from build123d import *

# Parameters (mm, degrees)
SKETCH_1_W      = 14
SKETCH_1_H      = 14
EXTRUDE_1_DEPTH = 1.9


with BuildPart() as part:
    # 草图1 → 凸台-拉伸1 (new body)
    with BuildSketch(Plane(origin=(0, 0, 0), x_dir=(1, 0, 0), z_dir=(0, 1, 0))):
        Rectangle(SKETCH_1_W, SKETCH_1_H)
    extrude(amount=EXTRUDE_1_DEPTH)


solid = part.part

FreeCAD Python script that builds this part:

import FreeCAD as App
import Part
import Sketcher
Q = App.Units.Quantity


def add_polygon(sketch, points):
    """Adds a closed chain of lines whose ends are joined by coincident constraints."""
    first, n = sketch.GeometryCount, len(points)
    for a, b in zip(points, points[1:] + points[:1]):
        sketch.addGeometry(Part.LineSegment(App.Vector(*a, 0), App.Vector(*b, 0)), False)
    for i in range(n):
        sketch.addConstraint(Sketcher.Constraint("Coincident", first + i, 2, first + (i + 1) % n, 1))

doc = App.newDocument("Part")
body = doc.addObject("PartDesign::Body", "Body")

# Sketch on XZ plane
sketch1 = doc.addObject("Sketcher::SketchObject", "Sketch")
body.addObject(sketch1)
sketch1.AttachmentSupport = (doc.XZ_Plane, [""])
sketch1.MapMode = "FlatFace"
add_polygon(sketch1, [(-7, -7), (-7, 7), (7, 7), (7, -7)])  # lines 0-3
sketch1.addConstraint(Sketcher.Constraint("Vertical", 0))
sketch1.addConstraint(Sketcher.Constraint("Horizontal", 1))
sketch1.addConstraint(Sketcher.Constraint("Vertical", 2))
sketch1.addConstraint(Sketcher.Constraint("Horizontal", 3))
sketch1.addConstraint(Sketcher.Constraint("Symmetric", 0, 2, 2, 2, -1, 1))
sketch1.addConstraint(Sketcher.Constraint("Equal", 3, 0))
sketch1.addConstraint(Sketcher.Constraint("DistanceX", 1, 1, 1, 2, Q("14 mm")))
pad1 = doc.addObject("PartDesign::Pad", "Pad")
body.addObject(pad1)
pad1.Profile = sketch1
pad1.Length = 1.9
pad1.Reversed = True

doc.recompute()
